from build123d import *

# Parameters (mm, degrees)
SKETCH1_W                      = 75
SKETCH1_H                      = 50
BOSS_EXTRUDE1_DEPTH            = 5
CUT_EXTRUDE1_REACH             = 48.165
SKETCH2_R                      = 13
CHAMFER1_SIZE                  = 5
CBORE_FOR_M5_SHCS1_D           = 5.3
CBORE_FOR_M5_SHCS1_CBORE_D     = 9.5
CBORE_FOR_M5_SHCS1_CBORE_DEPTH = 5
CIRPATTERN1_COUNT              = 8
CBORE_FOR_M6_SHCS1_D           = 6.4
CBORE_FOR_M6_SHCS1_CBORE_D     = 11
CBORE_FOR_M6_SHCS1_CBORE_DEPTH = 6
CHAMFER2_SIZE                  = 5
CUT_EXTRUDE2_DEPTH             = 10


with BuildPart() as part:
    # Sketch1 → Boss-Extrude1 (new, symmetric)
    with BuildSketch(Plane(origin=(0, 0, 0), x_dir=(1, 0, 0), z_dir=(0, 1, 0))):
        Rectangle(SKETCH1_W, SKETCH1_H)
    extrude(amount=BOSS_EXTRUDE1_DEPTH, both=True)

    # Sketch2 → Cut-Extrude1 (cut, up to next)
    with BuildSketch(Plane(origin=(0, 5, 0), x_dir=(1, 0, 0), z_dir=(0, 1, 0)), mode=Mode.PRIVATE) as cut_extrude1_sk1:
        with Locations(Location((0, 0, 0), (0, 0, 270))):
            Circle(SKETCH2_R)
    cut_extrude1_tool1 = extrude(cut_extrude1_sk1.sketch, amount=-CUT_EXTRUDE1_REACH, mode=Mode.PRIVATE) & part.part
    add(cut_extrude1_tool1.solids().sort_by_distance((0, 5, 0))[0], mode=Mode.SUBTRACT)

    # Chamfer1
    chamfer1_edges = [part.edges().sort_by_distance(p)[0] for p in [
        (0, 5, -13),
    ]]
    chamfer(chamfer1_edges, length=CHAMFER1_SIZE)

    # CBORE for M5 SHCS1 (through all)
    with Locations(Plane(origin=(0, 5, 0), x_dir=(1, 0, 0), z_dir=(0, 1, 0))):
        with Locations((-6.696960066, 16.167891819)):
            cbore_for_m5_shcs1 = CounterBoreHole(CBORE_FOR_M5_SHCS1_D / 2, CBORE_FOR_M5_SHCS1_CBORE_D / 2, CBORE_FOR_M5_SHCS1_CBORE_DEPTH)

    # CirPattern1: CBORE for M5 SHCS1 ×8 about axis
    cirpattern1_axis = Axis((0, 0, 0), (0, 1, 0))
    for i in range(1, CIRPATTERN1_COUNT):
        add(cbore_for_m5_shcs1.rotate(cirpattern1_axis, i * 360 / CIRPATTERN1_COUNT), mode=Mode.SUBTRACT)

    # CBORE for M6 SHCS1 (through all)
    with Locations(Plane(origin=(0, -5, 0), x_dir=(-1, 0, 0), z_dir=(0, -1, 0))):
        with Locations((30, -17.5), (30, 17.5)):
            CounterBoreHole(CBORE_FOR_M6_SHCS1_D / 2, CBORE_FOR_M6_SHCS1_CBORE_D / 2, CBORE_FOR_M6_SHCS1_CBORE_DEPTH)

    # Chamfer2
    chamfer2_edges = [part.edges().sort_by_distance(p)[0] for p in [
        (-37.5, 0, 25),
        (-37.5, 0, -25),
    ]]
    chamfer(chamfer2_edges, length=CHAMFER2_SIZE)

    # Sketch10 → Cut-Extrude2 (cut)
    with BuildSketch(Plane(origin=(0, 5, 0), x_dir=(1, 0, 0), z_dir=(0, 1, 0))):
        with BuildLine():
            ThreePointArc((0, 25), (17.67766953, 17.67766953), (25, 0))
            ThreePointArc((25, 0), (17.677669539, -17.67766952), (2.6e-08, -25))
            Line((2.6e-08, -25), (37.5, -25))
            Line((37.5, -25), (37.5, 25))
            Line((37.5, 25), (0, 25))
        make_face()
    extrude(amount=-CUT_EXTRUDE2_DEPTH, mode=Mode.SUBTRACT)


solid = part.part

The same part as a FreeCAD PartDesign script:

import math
import FreeCAD as App
import Part
import Sketcher
from FreeCAD import Vector
Q = App.Units.Quantity


def edges_at(feature, points):
    """Names of the edges that pass closest to the given points."""
    edges = feature.Shape.Edges
    near = lambda p: min(range(len(edges)), key=lambda i: edges[i].distToShape(Part.Vertex(*p))[0])
    return sorted({f"Edge{near(p) + 1}" for p in points})


def add_polygon(sketch, points):
    """Adds a closed chain of lines whose ends are joined by coincident constraints."""
    first, n = sketch.GeometryCount, len(points)
    for a, b in zip(points, points[1:] + points[:1]):
        sketch.addGeometry(Part.LineSegment(App.Vector(*a, 0), App.Vector(*b, 0)), False)
    for i in range(n):
        sketch.addConstraint(Sketcher.Constraint("Coincident", first + i, 2, first + (i + 1) % n, 1))

doc = App.newDocument("Part")
body = doc.addObject("PartDesign::Body", "Body")

sketch1 = doc.addObject("Sketcher::SketchObject", "Sketch")
body.addObject(sketch1)
sketch1.AttachmentSupport = (doc.XZ_Plane, [""])
sketch1.MapMode = "FlatFace"
add_polygon(sketch1, [(-38, -25), (-38, 25), (38, 25), (38, -25)])
sketch1.addConstraint([
    Sketcher.Constraint("Vertical", 0),
    Sketcher.Constraint("Horizontal", 1),
    Sketcher.Constraint("Vertical", 2),
    Sketcher.Constraint("Horizontal", 3),
    Sketcher.Constraint("Symmetric", 0, 2, 2, 2, -1, 1),
    Sketcher.Constraint("DistanceX", 1, 1, 1, 2, Q("75 mm")),
    Sketcher.Constraint("DistanceY", 0, 1, 0, 2, Q("50 mm")),
])
pad1 = doc.addObject("PartDesign::Pad", "Pad")
body.addObject(pad1)
pad1.Profile = sketch1
pad1.Length = 10
pad1.Midplane = True

sketch2 = doc.addObject("Sketcher::SketchObject", "Sketch001")
body.addObject(sketch2)
sketch2.AttachmentSupport = (doc.XZ_Plane, [""])
sketch2.MapMode = "FlatFace"
sketch2.AttachmentOffset = App.Placement(Vector(0, 0, -5), App.Rotation())
sketch2.addGeometry(Part.Circle(Vector(0, 0, 0), Vector(0, 0, 1), 13), False)
sketch2.addConstraint([
    Sketcher.Constraint("Coincident", 0, 3, -1, 1),
    Sketcher.Constraint("Diameter", 0, Q("26 mm")),
])
pocket1 = doc.addObject("PartDesign::Pocket", "Pocket")
body.addObject(pocket1)
pocket1.Profile = sketch2
pocket1.Type = "UpToFirst"
pocket1.Reversed = True
doc.recompute()

chamfer = doc.addObject("PartDesign::Chamfer", "Chamfer")
body.addObject(chamfer)
chamfer.Base = (pocket1, edges_at(pocket1, [(0, 5, -13)]))
chamfer.Size = 5

sketch3 = doc.addObject("Sketcher::SketchObject", "Sketch002")
body.addObject(sketch3)
sketch3.AttachmentSupport = (doc.XZ_Plane, [""])
sketch3.MapMode = "FlatFace"
sketch3.AttachmentOffset = App.Placement(Vector(0, 0, -5), App.Rotation())
sketch3.addGeometry(Part.Circle(Vector(-6.7, -16.2, 0), Vector(0, 0, 1), 2.6), False)
sketch3.addConstraint([
    Sketcher.Constraint("Diameter", 0, Q("5.3 mm")),
    Sketcher.Constraint("DistanceX", 0, 3, -1, 1, Q("6.69696 mm")),
    Sketcher.Constraint("DistanceY", 0, 3, -1, 1, Q("16.167892 mm")),
])
doc.recompute()
hole = doc.addObject("PartDesign::Hole", "Hole")
body.addObject(hole)
hole.Profile = sketch3
hole.ThreadType = "None"
hole.Diameter = 5.3
hole.DepthType = "ThroughAll"
hole.HoleCutType = "Counterbore"
hole.HoleCutDiameter = 9.5
hole.HoleCutDepth = 5
hole.Reversed = True
doc.recompute()

polarpattern = doc.addObject("PartDesign::PolarPattern", "PolarPattern")
body.addObject(polarpattern)
polarpattern.Originals = [hole]
polarpattern.Axis = (doc.Y_Axis, [""])
polarpattern.Angle = 360
polarpattern.Occurrences = 8
body.Tip = polarpattern

sketch4 = doc.addObject("Sketcher::SketchObject", "Sketch003")
body.addObject(sketch4)
sketch4.AttachmentSupport = (doc.XZ_Plane, [""])
sketch4.MapMode = "FlatFace"
sketch4.AttachmentOffset = App.Placement(Vector(0, 0, 5), App.Rotation())
sketch4.addGeometry([
    Part.Circle(Vector(-30, 17.5, 0), Vector(0, 0, 1), 3.2),
    Part.Circle(Vector(-30, -17.5, 0), Vector(0, 0, 1), 3.2),
], False)
sketch4.addConstraint([
    Sketcher.Constraint("Equal", 0, 1),
    Sketcher.Constraint("Symmetric", 0, 3, 1, 3, -1),
    Sketcher.Constraint("Diameter", 0, Q("6.4 mm")),
    Sketcher.Constraint("DistanceX", 0, 3, -1, 1, Q("30 mm")),
    Sketcher.Constraint("DistanceY", 1, 3, 0, 3, Q("35 mm")),
])
doc.recompute()
hole2 = doc.addObject("PartDesign::Hole", "Hole001")
body.addObject(hole2)
hole2.Profile = sketch4
hole2.ThreadType = "None"
hole2.Diameter = 6.4
hole2.DepthType = "ThroughAll"
hole2.HoleCutType = "Counterbore"
hole2.HoleCutDiameter = 11
hole2.HoleCutDepth = 6
doc.recompute()

chamfer2 = doc.addObject("PartDesign::Chamfer", "Chamfer001")
body.addObject(chamfer2)
chamfer2.Base = (hole2, edges_at(hole2, [(-37.5, 0, 25), (-37.5, 0, -25)]))
chamfer2.Size = 5

sketch5 = doc.addObject("Sketcher::SketchObject", "Sketch004")
body.addObject(sketch5)
sketch5.AttachmentSupport = (doc.XZ_Plane, [""])
sketch5.MapMode = "FlatFace"
sketch5.AttachmentOffset = App.Placement(Vector(0, 0, -5), App.Rotation())
sketch5.addGeometry([
    Part.ArcOfCircle(Part.Circle(Vector(0, 0, 0), Vector(0, 0, 1), 25), math.radians(-90), math.radians(0)),
    Part.ArcOfCircle(Part.Circle(Vector(0, 0, 0), Vector(0, 0, 1), 25), math.radians(0), math.radians(90)),
    Part.LineSegment(Vector(0, 25, 0), Vector(38, 25, 0)),
    Part.LineSegment(Vector(38, 25, 0), Vector(38, -25, 0)),
    Part.LineSegment(Vector(38, -25, 0), Vector(0, -25, 0)),
], False)
sketch5.addConstraint([
    Sketcher.Constraint("Tangent", 0, 2, 1, 1),
    Sketcher.Constraint("Tangent", 1, 2, 2, 1),
    Sketcher.Constraint("Coincident", 2, 2, 3, 1),
    Sketcher.Constraint("Coincident", 3, 2, 4, 1),
    Sketcher.Constraint("Tangent", 4, 2, 0, 1),
    Sketcher.Constraint("Horizontal", 2),
    Sketcher.Constraint("Vertical", 3),
    Sketcher.Constraint("Horizontal", 4),
    Sketcher.Constraint("Coincident", 0, 3, -1, 1),
    Sketcher.Constraint("Equal", 0, 1),
    Sketcher.Constraint("PointOnObject", 0, 2, -1),
    Sketcher.Constraint("Radius", 0, Q("25 mm")),
    Sketcher.Constraint("DistanceX", 2, 1, 2, 2, Q("37.5 mm")),
])
pocket2 = doc.addObject("PartDesign::Pocket", "Pocket001")
body.addObject(pocket2)
pocket2.Profile = sketch5
pocket2.Length = 10
pocket2.Reversed = True

doc.recompute()
